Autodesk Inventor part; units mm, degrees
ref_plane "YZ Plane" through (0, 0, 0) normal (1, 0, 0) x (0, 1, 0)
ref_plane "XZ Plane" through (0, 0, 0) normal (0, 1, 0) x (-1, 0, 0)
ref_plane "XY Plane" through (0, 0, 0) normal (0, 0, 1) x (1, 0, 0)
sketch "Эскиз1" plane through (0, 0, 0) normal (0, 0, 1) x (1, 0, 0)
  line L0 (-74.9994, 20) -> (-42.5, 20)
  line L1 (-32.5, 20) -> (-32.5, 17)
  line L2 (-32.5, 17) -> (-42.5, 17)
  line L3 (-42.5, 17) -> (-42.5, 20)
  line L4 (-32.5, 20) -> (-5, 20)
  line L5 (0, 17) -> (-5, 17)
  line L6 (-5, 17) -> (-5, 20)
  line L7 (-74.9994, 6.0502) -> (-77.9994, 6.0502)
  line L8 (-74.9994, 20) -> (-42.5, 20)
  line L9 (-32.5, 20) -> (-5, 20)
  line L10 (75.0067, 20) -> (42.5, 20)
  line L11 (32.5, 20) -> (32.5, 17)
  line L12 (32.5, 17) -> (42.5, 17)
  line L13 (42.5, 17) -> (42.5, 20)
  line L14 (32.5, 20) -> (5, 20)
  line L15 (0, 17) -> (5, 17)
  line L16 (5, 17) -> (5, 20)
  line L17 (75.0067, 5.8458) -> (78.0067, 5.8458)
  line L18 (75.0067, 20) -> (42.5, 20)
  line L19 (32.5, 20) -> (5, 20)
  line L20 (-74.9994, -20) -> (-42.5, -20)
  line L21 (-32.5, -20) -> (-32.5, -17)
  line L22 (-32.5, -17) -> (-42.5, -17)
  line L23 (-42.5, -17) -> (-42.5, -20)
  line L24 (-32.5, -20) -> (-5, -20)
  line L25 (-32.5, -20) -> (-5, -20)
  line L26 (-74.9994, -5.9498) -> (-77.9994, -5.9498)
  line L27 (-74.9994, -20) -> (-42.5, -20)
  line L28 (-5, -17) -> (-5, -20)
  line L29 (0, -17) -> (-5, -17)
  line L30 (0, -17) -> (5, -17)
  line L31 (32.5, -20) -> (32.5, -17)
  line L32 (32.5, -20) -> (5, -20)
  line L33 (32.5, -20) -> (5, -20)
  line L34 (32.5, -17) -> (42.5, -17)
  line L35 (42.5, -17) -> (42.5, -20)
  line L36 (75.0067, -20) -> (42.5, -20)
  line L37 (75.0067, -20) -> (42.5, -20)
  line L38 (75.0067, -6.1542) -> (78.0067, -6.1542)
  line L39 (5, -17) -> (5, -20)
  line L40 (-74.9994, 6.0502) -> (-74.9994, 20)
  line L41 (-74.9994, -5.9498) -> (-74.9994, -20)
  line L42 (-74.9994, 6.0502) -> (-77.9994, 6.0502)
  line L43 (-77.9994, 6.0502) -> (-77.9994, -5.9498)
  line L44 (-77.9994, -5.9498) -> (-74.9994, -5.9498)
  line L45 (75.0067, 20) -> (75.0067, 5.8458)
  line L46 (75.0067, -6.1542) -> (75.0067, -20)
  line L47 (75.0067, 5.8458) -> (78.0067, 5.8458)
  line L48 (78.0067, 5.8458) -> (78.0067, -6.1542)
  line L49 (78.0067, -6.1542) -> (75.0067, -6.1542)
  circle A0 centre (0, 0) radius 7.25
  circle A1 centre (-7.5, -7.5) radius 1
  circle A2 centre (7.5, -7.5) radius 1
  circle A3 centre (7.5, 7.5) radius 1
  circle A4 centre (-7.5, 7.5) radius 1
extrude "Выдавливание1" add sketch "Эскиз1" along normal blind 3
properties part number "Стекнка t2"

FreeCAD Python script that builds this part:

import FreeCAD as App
import Part
import Sketcher


def add_polygon(sketch, points):
    """Adds a closed chain of lines whose ends are joined by coincident constraints."""
    first, n = sketch.GeometryCount, len(points)
    for a, b in zip(points, points[1:] + points[:1]):
        sketch.addGeometry(Part.LineSegment(App.Vector(*a, 0), App.Vector(*b, 0)), False)
    for i in range(n):
        sketch.addConstraint(Sketcher.Constraint("Coincident", first + i, 2, first + (i + 1) % n, 1))

doc = App.newDocument("Part")
body = doc.addObject("PartDesign::Body", "Body")

# Sketch on XY plane
sketch1 = body.newObject("Sketcher::SketchObject", "Sketch")
sketch1.AttachmentSupport = (doc.getObject("XY_Plane"), [""])
sketch1.MapMode = "FlatFace"
add_polygon(sketch1, [(-42.5, 20), (-75, 20), (-75, 6.1), (-78, 6.1), (-78, -5.9), (-75, -5.9), (-75, -20), (-42.5, -20), (-42.5, -17), (-32.5, -17), (-32.5, -20), (-5, -20), (-5, -17), (5, -17), (5, -20), (32.5, -20), (32.5, -17), (42.5, -17), (42.5, -20), (75, -20), (75, -6.2), (78, -6.2), (78, 5.8), (75, 5.8), (75, 20), (42.5, 20), (42.5, 17), (32.5, 17), (32.5, 20), (5, 20), (5, 17), (-5, 17), (-5, 20), (-32.5, 20), (-32.5, 17), (-42.5, 17)])  # lines 0-35
sketch1.addGeometry(Part.Circle(App.Vector(-7.5, -7.5, 0), App.Vector(0, 0, 1), 1), False)  # 36
sketch1.addGeometry(Part.Circle(App.Vector(7.5, -7.5, 0), App.Vector(0, 0, 1), 1), False)  # 37
sketch1.addGeometry(Part.Circle(App.Vector(0, 0, 0), App.Vector(0, 0, 1), 7.2), False)  # 38
sketch1.addGeometry(Part.Circle(App.Vector(-7.5, 7.5, 0), App.Vector(0, 0, 1), 1), False)  # 39
sketch1.addGeometry(Part.Circle(App.Vector(7.5, 7.5, 0), App.Vector(0, 0, 1), 1), False)  # 40
sketch1.addConstraint([
    Sketcher.Constraint("Horizontal", 0),
    Sketcher.Constraint("Vertical", 1),
    Sketcher.Constraint("Horizontal", 2),
    Sketcher.Constraint("Vertical", 3),
    Sketcher.Constraint("Horizontal", 4),
    Sketcher.Constraint("Vertical", 5),
    Sketcher.Constraint("Horizontal", 6),
    Sketcher.Constraint("Vertical", 7),
    Sketcher.Constraint("Horizontal", 8),
    Sketcher.Constraint("Vertical", 9),
    Sketcher.Constraint("Horizontal", 10),
    Sketcher.Constraint("Vertical", 11),
    Sketcher.Constraint("Horizontal", 12),
    Sketcher.Constraint("Vertical", 13),
    Sketcher.Constraint("Horizontal", 14),
    Sketcher.Constraint("Vertical", 15),
    Sketcher.Constraint("Horizontal", 16),
    Sketcher.Constraint("Vertical", 17),
    Sketcher.Constraint("Horizontal", 18),
    Sketcher.Constraint("Vertical", 19),
    Sketcher.Constraint("Horizontal", 20),
    Sketcher.Constraint("Vertical", 21),
    Sketcher.Constraint("Horizontal", 22),
    Sketcher.Constraint("Vertical", 23),
    Sketcher.Constraint("Horizontal", 24),
    Sketcher.Constraint("Vertical", 25),
    Sketcher.Constraint("Horizontal", 26),
    Sketcher.Constraint("Vertical", 27),
    Sketcher.Constraint("Horizontal", 28),
    Sketcher.Constraint("Vertical", 29),
    Sketcher.Constraint("Horizontal", 30),
    Sketcher.Constraint("Vertical", 31),
    Sketcher.Constraint("Horizontal", 32),
    Sketcher.Constraint("Vertical", 33),
    Sketcher.Constraint("Horizontal", 34),
    Sketcher.Constraint("Vertical", 35),
    Sketcher.Constraint("Coincident", 38, 3, -1, 1),
    Sketcher.Constraint("Equal", 36, 37),
    Sketcher.Constraint("Equal", 37, 39),
    Sketcher.Constraint("Equal", 39, 40),
    Sketcher.Constraint("Symmetric", 37, 3, 39, 3, -1, 1),
    Sketcher.Constraint("Symmetric", 36, 3, 40, 3, -1, 1),
    Sketcher.Constraint("Symmetric", 6, 2, 24, 2, -1, 1),
    Sketcher.Constraint("Symmetric", 8, 2, 26, 2, -1, 1),
    Sketcher.Constraint("Symmetric", 10, 2, 28, 2, -1, 1),
    Sketcher.Constraint("Symmetric", 12, 2, 30, 2, -1, 1),
    Sketcher.Constraint("Symmetric", 14, 2, 32, 2, -1, 1),
    Sketcher.Constraint("Symmetric", 16, 2, 34, 2, -1, 1),
    Sketcher.Constraint("Symmetric", 36, 3, 37, 3, -2),
    Sketcher.Constraint("Symmetric", 10, 2, 13, 2, -2),
    Sketcher.Constraint("Symmetric", 8, 2, 15, 2, -2),
    Sketcher.Constraint("Symmetric", 6, 2, 17, 2, -2),
    Sketcher.Constraint("Symmetric", 0, 2, 5, 2, -1),
    Sketcher.Constraint("Horizontal", 6, 2, 9, 2),
    Sketcher.Constraint("Horizontal", 8, 2, 11, 2),
    Sketcher.Constraint("Vertical", 19, 2, 22, 2),
    Sketcher.Constraint("Equal", 8, 12),
    Sketcher.Constraint("Equal", 4, 20),
    Sketcher.Constraint("Equal", 22, 7),
    Sketcher.Constraint("Equal", 3, 21),
    Sketcher.Constraint("Diameter", 36, 2.0),
    Sketcher.Constraint("Diameter", 38, 14.5),
    Sketcher.Constraint("DistanceX", 2, 2, 2, 1, 3.0),
    Sketcher.Constraint("DistanceX", 8, 1, 8, 2, 10.0),
    Sketcher.Constraint("DistanceY", 3, 2, 3, 1, 12.0),
    Sketcher.Constraint("DistanceX", 10, 1, 10, 2, 27.5),
    Sketcher.Constraint("DistanceY", -1, 1, 0, 2, 20.0),
    Sketcher.Constraint("DistanceX", 36, 3, 37, 3, 15.0),
    Sketcher.Constraint("DistanceY", 36, 3, 39, 3, 15.0),
    Sketcher.Constraint("DistanceX", 0, 2, 0, 1, 32.4994),
    Sketcher.Constraint("DistanceX", 18, 1, 18, 2, 32.5067),
    Sketcher.Constraint("DistanceY", 1, 2, 1, 1, 13.9498),
    Sketcher.Constraint("DistanceY", 19, 1, 19, 2, 13.8458),
])
pad1 = body.newObject("PartDesign::Pad", "Pad")
pad1.Profile = sketch1
pad1.Length = 3

doc.recompute()
